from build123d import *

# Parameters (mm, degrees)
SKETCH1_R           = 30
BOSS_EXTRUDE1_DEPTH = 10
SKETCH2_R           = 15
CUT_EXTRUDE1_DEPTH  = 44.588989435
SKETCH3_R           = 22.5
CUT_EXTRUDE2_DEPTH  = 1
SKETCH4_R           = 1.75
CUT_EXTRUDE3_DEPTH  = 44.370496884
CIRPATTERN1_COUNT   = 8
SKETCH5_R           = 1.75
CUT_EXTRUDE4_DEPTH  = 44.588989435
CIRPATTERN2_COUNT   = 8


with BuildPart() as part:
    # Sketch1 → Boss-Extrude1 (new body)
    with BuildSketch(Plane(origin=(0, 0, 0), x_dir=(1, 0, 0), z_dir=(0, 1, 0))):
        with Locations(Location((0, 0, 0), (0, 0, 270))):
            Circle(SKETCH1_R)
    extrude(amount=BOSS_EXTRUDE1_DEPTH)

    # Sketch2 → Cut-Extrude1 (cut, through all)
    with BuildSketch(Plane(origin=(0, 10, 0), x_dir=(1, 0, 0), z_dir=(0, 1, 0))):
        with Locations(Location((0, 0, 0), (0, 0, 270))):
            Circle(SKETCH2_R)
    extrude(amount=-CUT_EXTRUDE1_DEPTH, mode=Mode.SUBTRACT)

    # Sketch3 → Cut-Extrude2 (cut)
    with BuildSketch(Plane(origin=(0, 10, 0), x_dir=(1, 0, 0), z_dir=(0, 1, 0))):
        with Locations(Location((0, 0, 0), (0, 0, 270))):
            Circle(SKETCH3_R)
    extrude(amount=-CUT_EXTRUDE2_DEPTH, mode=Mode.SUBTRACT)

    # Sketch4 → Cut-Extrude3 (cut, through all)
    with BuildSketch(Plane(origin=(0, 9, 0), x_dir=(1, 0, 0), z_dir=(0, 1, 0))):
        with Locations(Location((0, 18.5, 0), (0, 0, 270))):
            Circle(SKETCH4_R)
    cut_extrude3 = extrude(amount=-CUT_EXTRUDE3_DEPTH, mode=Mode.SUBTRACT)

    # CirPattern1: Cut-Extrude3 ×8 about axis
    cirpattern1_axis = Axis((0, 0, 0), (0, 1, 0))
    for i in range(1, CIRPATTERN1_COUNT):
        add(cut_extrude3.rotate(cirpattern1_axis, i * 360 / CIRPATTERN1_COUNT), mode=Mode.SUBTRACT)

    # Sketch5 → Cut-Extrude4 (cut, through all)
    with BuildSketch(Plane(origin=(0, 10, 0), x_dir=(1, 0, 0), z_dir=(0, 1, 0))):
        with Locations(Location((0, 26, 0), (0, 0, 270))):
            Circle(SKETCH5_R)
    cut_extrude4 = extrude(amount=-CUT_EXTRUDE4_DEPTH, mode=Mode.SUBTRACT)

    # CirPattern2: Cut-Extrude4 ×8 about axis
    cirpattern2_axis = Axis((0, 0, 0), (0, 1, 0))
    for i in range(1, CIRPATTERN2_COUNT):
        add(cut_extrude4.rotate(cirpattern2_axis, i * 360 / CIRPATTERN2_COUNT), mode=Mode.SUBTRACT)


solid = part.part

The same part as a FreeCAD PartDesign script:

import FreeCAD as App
import Part
import Sketcher
Q = App.Units.Quantity

doc = App.newDocument("Part")
body = doc.addObject("PartDesign::Body", "Body")

# Sketch on XZ plane
sketch1 = body.newObject("Sketcher::SketchObject", "Sketch")
sketch1.AttachmentSupport = (doc.getObject("XZ_Plane"), [""])
sketch1.MapMode = "FlatFace"
sketch1.addGeometry(Part.Circle(App.Vector(0, 0, 0), App.Vector(0, 0, 1), 30), False)
sketch1.addConstraint([
    Sketcher.Constraint("Coincident", 0, 3, -1, 1),
    Sketcher.Constraint("Diameter", 0, Q("60 mm")),
])
pad1 = body.newObject("PartDesign::Pad", "Pad")
pad1.Profile = sketch1
pad1.Length = 10
pad1.Reversed = True

# Sketch on XZ plane
sketch2 = body.newObject("Sketcher::SketchObject", "Sketch001")
sketch2.AttachmentSupport = (doc.getObject("XZ_Plane"), [""])
sketch2.MapMode = "FlatFace"
sketch2.AttachmentOffset = App.Placement(App.Vector(0, 0, -10), App.Rotation())
sketch2.addGeometry(Part.Circle(App.Vector(0, 0, 0), App.Vector(0, 0, 1), 15), False)
sketch2.addConstraint([
    Sketcher.Constraint("Coincident", 0, 3, -1, 1),
    Sketcher.Constraint("Diameter", 0, Q("30 mm")),
])
pocket1 = body.newObject("PartDesign::Pocket", "Pocket")
pocket1.Profile = sketch2
pocket1.Type = "ThroughAll"
pocket1.Reversed = True

# Sketch on XZ plane
sketch3 = body.newObject("Sketcher::SketchObject", "Sketch002")
sketch3.AttachmentSupport = (doc.getObject("XZ_Plane"), [""])
sketch3.MapMode = "FlatFace"
sketch3.AttachmentOffset = App.Placement(App.Vector(0, 0, -10), App.Rotation())
sketch3.addGeometry(Part.Circle(App.Vector(0, 0, 0), App.Vector(0, 0, 1), 22), False)
sketch3.addConstraint([
    Sketcher.Constraint("Coincident", 0, 3, -1, 1),
    Sketcher.Constraint("Diameter", 0, Q("45 mm")),
])
pocket2 = body.newObject("PartDesign::Pocket", "Pocket001")
pocket2.Profile = sketch3
pocket2.Length = 1
pocket2.Reversed = True

# Sketch on XZ plane
sketch4 = body.newObject("Sketcher::SketchObject", "Sketch003")
sketch4.AttachmentSupport = (doc.getObject("XZ_Plane"), [""])
sketch4.MapMode = "FlatFace"
sketch4.AttachmentOffset = App.Placement(App.Vector(0, 0, -9), App.Rotation())
sketch4.addGeometry(Part.Circle(App.Vector(0, -18.5, 0), App.Vector(0, 0, 1), 1.8), False)
sketch4.addConstraint([
    Sketcher.Constraint("PointOnObject", 0, 3, -2),
    Sketcher.Constraint("Diameter", 0, Q("3.5 mm")),
    Sketcher.Constraint("DistanceY", 0, 3, -1, 1, Q("18.5 mm")),
])
pocket3 = body.newObject("PartDesign::Pocket", "Pocket002")
pocket3.Profile = sketch4
pocket3.Type = "ThroughAll"
pocket3.Reversed = True
doc.recompute()

polarpattern = body.newObject("PartDesign::PolarPattern", "PolarPattern")
polarpattern.Originals = [pocket3]
polarpattern.Axis = (doc.getObject("Y_Axis"), [""])
polarpattern.Angle = 360
polarpattern.Occurrences = 8
body.Tip = polarpattern

# Sketch on XZ plane
sketch5 = body.newObject("Sketcher::SketchObject", "Sketch004")
sketch5.AttachmentSupport = (doc.getObject("XZ_Plane"), [""])
sketch5.MapMode = "FlatFace"
sketch5.AttachmentOffset = App.Placement(App.Vector(0, 0, -10), App.Rotation())
sketch5.addGeometry(Part.Circle(App.Vector(0, -26, 0), App.Vector(0, 0, 1), 1.8), False)
sketch5.addConstraint([
    Sketcher.Constraint("PointOnObject", 0, 3, -2),
    Sketcher.Constraint("Diameter", 0, Q("3.5 mm")),
    Sketcher.Constraint("DistanceY", 0, 3, -1, 1, Q("26 mm")),
])
pocket4 = body.newObject("PartDesign::Pocket", "Pocket003")
pocket4.Profile = sketch5
pocket4.Type = "ThroughAll"
pocket4.Reversed = True
doc.recompute()

polarpattern2 = body.newObject("PartDesign::PolarPattern", "PolarPattern001")
polarpattern2.Originals = [pocket4]
polarpattern2.Axis = (doc.getObject("Y_Axis"), [""])
polarpattern2.Angle = 360
polarpattern2.Occurrences = 8
body.Tip = polarpattern2

doc.recompute()
